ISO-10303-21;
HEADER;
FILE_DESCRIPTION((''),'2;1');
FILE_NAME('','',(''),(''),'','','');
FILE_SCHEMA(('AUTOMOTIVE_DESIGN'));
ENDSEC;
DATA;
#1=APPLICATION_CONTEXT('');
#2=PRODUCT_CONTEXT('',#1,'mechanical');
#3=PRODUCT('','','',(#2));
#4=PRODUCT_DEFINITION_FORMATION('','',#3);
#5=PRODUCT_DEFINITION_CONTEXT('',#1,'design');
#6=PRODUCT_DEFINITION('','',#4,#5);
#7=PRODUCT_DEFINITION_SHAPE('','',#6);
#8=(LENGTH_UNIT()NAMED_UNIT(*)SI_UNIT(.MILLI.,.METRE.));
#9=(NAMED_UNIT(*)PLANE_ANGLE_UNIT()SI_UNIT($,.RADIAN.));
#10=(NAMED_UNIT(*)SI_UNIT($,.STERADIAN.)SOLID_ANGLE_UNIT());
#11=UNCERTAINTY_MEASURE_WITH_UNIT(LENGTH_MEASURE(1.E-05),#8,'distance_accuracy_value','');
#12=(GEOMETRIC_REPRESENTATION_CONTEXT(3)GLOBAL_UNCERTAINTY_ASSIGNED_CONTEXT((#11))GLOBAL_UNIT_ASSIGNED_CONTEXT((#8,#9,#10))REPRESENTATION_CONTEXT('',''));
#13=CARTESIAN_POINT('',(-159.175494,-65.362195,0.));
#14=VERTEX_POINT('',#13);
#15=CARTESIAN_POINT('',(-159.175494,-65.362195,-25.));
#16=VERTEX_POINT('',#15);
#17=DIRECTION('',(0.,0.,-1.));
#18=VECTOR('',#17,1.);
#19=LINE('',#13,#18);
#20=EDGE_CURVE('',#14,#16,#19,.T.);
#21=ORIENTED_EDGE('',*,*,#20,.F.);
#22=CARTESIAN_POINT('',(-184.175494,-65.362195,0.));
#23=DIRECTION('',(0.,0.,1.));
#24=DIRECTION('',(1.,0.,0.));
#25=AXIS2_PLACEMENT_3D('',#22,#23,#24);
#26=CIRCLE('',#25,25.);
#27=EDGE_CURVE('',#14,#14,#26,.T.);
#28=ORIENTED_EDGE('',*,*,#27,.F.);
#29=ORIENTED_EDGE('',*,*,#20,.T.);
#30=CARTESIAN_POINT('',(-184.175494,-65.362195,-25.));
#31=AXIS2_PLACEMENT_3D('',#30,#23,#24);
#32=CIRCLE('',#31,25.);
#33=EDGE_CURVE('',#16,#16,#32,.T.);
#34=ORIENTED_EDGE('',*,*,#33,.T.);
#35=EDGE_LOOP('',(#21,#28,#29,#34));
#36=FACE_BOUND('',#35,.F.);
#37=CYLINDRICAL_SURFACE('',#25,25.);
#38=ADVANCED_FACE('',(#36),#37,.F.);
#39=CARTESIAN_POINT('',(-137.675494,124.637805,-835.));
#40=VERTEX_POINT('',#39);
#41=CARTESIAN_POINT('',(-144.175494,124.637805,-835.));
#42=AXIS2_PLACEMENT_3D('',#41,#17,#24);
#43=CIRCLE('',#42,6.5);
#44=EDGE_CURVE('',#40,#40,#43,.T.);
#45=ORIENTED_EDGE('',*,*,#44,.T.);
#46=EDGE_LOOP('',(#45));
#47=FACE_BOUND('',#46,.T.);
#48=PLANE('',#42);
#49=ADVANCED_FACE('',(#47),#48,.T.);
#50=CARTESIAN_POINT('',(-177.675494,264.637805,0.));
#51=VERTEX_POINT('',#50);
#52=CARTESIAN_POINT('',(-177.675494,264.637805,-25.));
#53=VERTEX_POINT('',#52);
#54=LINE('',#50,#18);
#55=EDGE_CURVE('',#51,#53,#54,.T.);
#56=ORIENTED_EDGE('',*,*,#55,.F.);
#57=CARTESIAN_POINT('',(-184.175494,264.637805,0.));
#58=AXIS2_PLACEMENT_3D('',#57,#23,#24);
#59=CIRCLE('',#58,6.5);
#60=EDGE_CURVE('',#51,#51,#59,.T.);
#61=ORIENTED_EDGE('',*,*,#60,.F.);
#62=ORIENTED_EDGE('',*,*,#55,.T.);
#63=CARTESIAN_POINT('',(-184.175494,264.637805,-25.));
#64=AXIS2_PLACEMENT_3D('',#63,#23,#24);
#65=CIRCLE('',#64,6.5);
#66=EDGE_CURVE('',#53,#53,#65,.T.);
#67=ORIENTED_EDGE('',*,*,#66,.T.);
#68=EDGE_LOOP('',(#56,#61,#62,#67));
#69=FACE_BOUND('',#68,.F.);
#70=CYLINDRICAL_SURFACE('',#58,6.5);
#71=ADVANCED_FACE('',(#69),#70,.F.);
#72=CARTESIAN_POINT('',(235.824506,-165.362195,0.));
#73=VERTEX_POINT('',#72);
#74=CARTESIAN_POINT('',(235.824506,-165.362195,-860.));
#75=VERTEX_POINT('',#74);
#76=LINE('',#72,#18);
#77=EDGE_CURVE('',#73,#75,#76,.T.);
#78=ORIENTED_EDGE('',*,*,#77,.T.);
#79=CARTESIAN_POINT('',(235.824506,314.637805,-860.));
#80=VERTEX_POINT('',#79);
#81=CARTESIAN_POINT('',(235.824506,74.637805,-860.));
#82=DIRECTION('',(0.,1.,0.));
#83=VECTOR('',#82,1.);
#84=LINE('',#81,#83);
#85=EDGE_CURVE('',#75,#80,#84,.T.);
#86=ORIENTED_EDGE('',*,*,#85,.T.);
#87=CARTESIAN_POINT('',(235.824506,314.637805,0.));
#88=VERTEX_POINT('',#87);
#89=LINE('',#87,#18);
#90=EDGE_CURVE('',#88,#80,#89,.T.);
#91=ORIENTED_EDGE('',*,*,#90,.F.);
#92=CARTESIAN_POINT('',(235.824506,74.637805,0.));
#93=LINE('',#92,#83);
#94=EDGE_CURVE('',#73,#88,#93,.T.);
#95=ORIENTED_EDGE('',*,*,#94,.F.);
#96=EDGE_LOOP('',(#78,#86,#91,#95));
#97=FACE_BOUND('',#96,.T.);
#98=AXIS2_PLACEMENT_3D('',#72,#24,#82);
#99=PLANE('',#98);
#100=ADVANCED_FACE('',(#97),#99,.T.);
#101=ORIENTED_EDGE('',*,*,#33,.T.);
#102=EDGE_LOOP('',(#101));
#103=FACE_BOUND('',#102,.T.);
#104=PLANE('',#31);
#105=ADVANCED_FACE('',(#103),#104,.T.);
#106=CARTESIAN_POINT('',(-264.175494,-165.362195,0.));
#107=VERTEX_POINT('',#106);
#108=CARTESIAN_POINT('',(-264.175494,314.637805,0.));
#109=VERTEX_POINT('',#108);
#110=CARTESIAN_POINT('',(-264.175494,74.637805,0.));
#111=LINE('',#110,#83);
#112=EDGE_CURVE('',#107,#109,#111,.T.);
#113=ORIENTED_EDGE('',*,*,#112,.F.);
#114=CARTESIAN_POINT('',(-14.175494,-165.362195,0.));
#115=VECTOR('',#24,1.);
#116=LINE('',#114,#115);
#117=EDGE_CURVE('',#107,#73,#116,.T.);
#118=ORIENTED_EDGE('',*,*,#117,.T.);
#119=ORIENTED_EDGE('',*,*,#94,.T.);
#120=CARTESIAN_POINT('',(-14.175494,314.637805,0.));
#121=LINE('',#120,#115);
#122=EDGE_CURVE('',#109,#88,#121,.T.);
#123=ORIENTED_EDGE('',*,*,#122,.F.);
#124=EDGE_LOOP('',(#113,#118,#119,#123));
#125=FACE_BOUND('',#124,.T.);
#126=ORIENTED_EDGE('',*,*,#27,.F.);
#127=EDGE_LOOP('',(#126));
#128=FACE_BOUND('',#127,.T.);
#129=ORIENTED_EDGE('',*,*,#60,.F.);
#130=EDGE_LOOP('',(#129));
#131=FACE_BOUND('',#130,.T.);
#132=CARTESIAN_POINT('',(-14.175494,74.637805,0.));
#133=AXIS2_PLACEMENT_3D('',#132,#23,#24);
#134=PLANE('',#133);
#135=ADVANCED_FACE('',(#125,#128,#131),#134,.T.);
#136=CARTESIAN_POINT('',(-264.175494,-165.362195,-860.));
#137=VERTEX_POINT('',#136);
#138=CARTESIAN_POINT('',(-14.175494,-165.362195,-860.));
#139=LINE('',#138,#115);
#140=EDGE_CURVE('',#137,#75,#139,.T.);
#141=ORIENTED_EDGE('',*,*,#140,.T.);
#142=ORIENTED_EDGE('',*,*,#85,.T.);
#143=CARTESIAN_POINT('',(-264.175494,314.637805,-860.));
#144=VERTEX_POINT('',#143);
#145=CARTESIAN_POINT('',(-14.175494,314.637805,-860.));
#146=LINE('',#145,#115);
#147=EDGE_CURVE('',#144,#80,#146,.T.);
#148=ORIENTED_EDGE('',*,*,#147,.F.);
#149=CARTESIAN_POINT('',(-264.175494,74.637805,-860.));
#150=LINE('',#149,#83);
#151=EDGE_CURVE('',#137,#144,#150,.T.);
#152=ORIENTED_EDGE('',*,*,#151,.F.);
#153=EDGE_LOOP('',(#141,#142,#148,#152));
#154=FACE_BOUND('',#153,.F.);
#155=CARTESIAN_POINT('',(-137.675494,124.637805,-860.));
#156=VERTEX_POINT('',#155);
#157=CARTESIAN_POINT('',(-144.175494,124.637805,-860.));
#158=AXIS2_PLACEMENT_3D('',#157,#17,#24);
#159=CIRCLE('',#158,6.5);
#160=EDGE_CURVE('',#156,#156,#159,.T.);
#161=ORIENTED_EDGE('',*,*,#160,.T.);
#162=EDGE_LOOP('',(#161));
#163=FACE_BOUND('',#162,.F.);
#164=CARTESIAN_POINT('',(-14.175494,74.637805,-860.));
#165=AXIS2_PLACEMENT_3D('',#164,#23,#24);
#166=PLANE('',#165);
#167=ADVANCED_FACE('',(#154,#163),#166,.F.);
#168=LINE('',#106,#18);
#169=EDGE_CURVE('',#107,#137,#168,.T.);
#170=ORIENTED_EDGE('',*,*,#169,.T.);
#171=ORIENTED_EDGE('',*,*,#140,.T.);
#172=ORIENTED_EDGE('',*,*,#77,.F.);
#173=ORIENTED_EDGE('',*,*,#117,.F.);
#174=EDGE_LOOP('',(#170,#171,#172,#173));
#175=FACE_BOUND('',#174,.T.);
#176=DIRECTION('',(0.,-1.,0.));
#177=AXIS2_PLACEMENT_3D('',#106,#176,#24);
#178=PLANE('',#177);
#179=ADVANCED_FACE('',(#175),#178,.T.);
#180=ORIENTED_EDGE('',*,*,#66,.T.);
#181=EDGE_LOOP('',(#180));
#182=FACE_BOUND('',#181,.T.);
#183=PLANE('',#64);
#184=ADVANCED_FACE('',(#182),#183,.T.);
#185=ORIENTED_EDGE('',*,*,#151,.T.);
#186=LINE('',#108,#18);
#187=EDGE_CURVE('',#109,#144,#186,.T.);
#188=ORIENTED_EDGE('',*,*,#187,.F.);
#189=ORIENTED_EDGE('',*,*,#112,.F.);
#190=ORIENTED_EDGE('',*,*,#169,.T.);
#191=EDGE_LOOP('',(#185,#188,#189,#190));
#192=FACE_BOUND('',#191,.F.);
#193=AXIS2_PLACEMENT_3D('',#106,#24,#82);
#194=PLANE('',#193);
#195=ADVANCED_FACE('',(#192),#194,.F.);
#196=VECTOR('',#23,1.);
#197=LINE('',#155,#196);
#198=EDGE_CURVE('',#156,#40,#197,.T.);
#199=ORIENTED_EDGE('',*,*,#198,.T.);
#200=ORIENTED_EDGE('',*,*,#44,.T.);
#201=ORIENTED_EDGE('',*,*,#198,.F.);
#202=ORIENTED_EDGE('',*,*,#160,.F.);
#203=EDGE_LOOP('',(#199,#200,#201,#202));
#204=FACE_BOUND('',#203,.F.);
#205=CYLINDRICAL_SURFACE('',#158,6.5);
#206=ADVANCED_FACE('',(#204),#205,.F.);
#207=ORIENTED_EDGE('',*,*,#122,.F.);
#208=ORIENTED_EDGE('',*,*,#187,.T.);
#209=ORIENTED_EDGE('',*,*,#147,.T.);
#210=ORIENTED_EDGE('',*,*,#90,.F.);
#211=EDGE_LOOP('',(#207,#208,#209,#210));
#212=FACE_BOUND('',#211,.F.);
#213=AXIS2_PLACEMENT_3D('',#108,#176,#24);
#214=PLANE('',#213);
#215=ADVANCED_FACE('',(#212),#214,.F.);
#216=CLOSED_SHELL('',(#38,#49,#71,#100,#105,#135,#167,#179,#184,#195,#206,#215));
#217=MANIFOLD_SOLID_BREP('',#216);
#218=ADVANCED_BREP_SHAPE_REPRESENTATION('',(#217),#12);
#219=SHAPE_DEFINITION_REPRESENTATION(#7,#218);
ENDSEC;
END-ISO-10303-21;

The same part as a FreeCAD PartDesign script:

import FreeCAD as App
import Part
import Sketcher

V = App.Vector
Q = App.Units.Quantity

doc = App.newDocument("Part")
params = doc.addObject("Spreadsheet::Sheet", "Params")
for row, (alias, value) in enumerate([
    ("sketch1_width", "500 mm"),
    ("sketch1_height", "480 mm"),
    ("pad1_length", "860 mm"),
    ("sketch2_diameter", "50 mm"),
    ("sketch2_diameter2", "13 mm"),
    ("pocket1_length", "25 mm"),
    ("sketch3_diameter", "13 mm"),
    ("pocket2_length", "25 mm"),
], start=1):
    params.set(f"A{row}", alias)
    params.set(f"B{row}", "=" + value)
    params.setAlias(f"B{row}", alias)

body = doc.addObject("PartDesign::Body", "Body")

sketch1 = body.newObject("Sketcher::SketchObject", "Sketch")
sketch1.AttachmentSupport = (doc.getObject("XY_Plane"), [""])
sketch1.MapMode = "FlatFace"
sketch1.addGeometry(Part.LineSegment(V(-264, 315, 0), V(-264, -165, 0)), False)
sketch1.addGeometry(Part.LineSegment(V(-264, -165, 0), V(236, -165, 0)), False)
sketch1.addGeometry(Part.LineSegment(V(236, -165, 0), V(236, 315, 0)), False)
sketch1.addGeometry(Part.LineSegment(V(236, 315, 0), V(-264, 315, 0)), False)
sketch1.addConstraint(Sketcher.Constraint("Coincident", 0, 2, 1, 1))
sketch1.addConstraint(Sketcher.Constraint("Coincident", 1, 2, 2, 1))
sketch1.addConstraint(Sketcher.Constraint("Coincident", 2, 2, 3, 1))
sketch1.addConstraint(Sketcher.Constraint("Coincident", 3, 2, 0, 1))
sketch1.addConstraint(Sketcher.Constraint("Vertical", 0))
sketch1.addConstraint(Sketcher.Constraint("Horizontal", 1))
sketch1.addConstraint(Sketcher.Constraint("Vertical", 2))
sketch1.addConstraint(Sketcher.Constraint("Horizontal", 3))
sketch1.addConstraint(Sketcher.Constraint("DistanceX", 1, 1, 1, 2, Q("500 mm")))
sketch1.addConstraint(Sketcher.Constraint("DistanceY", 0, 2, 0, 1, Q("480 mm")))
sketch1.addConstraint(Sketcher.Constraint("DistanceX", 0, 2, -1, 1, Q("264.175494 mm")))
sketch1.addConstraint(Sketcher.Constraint("DistanceY", 0, 2, -1, 1, Q("165.362195 mm")))
sketch1.setExpression("Constraints[8]", "Params.sketch1_width")
sketch1.setExpression("Constraints[9]", "Params.sketch1_height")
pad1 = body.newObject("PartDesign::Pad", "Pad")
pad1.Profile = sketch1
pad1.setExpression("Length", "Params.pad1_length")
pad1.Reversed = True

sketch2 = body.newObject("Sketcher::SketchObject", "Sketch001")
sketch2.AttachmentSupport = (doc.getObject("XY_Plane"), [""])
sketch2.MapMode = "FlatFace"
sketch2.addGeometry(Part.Circle(V(-184, -65, 0), V(0, 0, 1), 25), False)
sketch2.addGeometry(Part.Circle(V(-184, 265, 0), V(0, 0, 1), 6), False)
sketch2.addConstraint(Sketcher.Constraint("Vertical", 0, 3, 1, 3))
sketch2.addConstraint(Sketcher.Constraint("Diameter", 0, Q("50 mm")))
sketch2.addConstraint(Sketcher.Constraint("Diameter", 1, Q("13 mm")))
sketch2.addConstraint(Sketcher.Constraint("DistanceY", 0, 3, 1, 3, Q("330 mm")))
sketch2.addConstraint(Sketcher.Constraint("DistanceX", 0, 3, -1, 1, Q("184.175494 mm")))
sketch2.addConstraint(Sketcher.Constraint("DistanceY", 0, 3, -1, 1, Q("65.362195 mm")))
sketch2.setExpression("Constraints[1]", "Params.sketch2_diameter")
sketch2.setExpression("Constraints[2]", "Params.sketch2_diameter2")
pocket1 = body.newObject("PartDesign::Pocket", "Pocket")
pocket1.Profile = sketch2
pocket1.setExpression("Length", "Params.pocket1_length")

sketch3 = body.newObject("Sketcher::SketchObject", "Sketch002")
sketch3.AttachmentSupport = (doc.getObject("XY_Plane"), [""])
sketch3.MapMode = "FlatFace"
sketch3.AttachmentOffset = App.Placement(V(0, 0, -860), App.Rotation())
sketch3.addGeometry(Part.Circle(V(-144, 125, 0), V(0, 0, 1), 6), False)
sketch3.addConstraint(Sketcher.Constraint("Diameter", 0, Q("13 mm")))
sketch3.addConstraint(Sketcher.Constraint("DistanceX", 0, 3, -1, 1, Q("144.175494 mm")))
sketch3.addConstraint(Sketcher.Constraint("DistanceY", -1, 1, 0, 3, Q("124.637805 mm")))
sketch3.setExpression("Constraints[0]", "Params.sketch3_diameter")
pocket2 = body.newObject("PartDesign::Pocket", "Pocket001")
pocket2.Profile = sketch3
pocket2.setExpression("Length", "Params.pocket2_length")
pocket2.Reversed = True

doc.recompute()
